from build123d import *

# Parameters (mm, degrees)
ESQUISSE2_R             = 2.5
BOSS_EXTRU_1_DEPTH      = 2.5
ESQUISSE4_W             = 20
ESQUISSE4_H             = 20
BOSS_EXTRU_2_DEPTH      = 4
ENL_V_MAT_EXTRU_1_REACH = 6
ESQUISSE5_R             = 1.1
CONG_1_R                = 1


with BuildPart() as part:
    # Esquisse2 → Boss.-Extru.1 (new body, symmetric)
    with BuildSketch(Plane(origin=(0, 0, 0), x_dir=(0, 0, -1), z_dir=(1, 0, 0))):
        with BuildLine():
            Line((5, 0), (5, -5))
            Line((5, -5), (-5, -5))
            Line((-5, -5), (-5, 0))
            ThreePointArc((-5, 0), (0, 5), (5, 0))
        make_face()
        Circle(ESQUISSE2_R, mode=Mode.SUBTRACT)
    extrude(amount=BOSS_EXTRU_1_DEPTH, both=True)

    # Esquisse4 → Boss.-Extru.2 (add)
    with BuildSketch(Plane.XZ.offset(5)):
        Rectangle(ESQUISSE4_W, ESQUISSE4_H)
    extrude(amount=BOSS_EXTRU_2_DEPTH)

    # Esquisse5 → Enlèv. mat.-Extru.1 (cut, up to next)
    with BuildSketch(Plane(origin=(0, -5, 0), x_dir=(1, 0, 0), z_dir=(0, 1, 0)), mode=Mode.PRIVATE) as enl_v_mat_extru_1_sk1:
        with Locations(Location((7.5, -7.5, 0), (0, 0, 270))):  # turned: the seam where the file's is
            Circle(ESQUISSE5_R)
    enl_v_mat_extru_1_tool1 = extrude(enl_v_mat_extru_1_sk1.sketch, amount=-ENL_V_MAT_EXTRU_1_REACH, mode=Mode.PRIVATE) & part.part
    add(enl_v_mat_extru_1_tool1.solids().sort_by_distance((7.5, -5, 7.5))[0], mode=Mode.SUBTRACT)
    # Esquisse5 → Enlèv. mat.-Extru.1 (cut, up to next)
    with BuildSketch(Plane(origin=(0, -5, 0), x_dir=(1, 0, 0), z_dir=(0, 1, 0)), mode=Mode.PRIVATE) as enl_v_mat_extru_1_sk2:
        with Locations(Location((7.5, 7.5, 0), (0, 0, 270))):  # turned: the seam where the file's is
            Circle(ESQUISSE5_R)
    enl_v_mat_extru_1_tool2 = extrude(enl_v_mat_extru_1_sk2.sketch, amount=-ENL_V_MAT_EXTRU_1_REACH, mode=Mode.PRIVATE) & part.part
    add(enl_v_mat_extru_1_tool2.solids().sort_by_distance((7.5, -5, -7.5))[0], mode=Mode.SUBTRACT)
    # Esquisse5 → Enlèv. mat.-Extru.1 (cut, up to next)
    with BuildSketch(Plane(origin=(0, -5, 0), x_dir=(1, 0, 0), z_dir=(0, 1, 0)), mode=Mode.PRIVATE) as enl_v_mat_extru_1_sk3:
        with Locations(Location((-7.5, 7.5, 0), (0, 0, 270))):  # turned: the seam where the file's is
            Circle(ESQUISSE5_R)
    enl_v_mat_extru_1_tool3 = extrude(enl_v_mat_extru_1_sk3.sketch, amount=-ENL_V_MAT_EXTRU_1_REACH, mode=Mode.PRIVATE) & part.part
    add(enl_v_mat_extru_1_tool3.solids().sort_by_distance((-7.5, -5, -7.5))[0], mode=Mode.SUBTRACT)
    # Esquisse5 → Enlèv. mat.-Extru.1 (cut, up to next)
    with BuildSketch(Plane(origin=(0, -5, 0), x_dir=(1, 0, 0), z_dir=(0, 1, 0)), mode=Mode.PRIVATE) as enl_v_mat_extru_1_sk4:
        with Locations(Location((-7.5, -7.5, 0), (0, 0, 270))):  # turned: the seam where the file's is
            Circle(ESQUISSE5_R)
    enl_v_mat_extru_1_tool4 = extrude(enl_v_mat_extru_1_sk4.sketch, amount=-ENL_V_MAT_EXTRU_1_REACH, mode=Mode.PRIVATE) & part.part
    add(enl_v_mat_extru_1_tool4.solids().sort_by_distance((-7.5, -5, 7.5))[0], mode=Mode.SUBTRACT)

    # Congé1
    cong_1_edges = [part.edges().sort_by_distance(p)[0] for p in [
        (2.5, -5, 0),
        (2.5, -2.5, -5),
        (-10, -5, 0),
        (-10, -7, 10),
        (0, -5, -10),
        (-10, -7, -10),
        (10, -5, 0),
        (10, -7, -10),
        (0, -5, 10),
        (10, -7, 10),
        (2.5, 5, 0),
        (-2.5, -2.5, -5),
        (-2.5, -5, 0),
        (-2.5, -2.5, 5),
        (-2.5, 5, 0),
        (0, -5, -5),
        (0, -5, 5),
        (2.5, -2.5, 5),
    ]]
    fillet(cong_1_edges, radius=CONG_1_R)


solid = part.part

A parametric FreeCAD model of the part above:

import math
import FreeCAD as App
import Part
import Sketcher
from FreeCAD import Vector


def edges_at(feature, points):
    """Names of the edges that pass closest to the given points."""
    edges = feature.Shape.Edges
    near = lambda p: min(range(len(edges)), key=lambda i: edges[i].distToShape(Part.Vertex(*p))[0])
    return sorted({f"Edge{near(p) + 1}" for p in points})


def add_polygon(sketch, points):
    """Adds a closed chain of lines whose ends are joined by coincident constraints."""
    first, n = sketch.GeometryCount, len(points)
    for a, b in zip(points, points[1:] + points[:1]):
        sketch.addGeometry(Part.LineSegment(App.Vector(*a, 0), App.Vector(*b, 0)), False)
    for i in range(n):
        sketch.addConstraint(Sketcher.Constraint("Coincident", first + i, 2, first + (i + 1) % n, 1))

doc = App.newDocument("Part")
body = doc.addObject("PartDesign::Body", "Body")

# Sketch on YZ plane
sketch1 = body.newObject("Sketcher::SketchObject", "Sketch")
sketch1.AttachmentSupport = (doc.getObject("YZ_Plane"), [""])
sketch1.MapMode = "FlatFace"
sketch1.addGeometry(Part.LineSegment(Vector(-5, -5, 0), Vector(0, -5, 0)), False)
sketch1.addGeometry(Part.ArcOfCircle(Part.Circle(Vector(0, 0, 0), Vector(0, 0, 1), 5), math.radians(-90), math.radians(90)), False)
sketch1.addGeometry(Part.LineSegment(Vector(0, 5, 0), Vector(-5, 5, 0)), False)
sketch1.addGeometry(Part.LineSegment(Vector(-5, 5, 0), Vector(-5, -5, 0)), False)
sketch1.addGeometry(Part.Circle(Vector(0, 0, 0), Vector(0, 0, 1), 2.5), False)
sketch1.addConstraint(Sketcher.Constraint("Tangent", 0, 2, 1, 1))
sketch1.addConstraint(Sketcher.Constraint("Tangent", 1, 2, 2, 1))
sketch1.addConstraint(Sketcher.Constraint("Coincident", 2, 2, 3, 1))
sketch1.addConstraint(Sketcher.Constraint("Coincident", 3, 2, 0, 1))
sketch1.addConstraint(Sketcher.Constraint("Horizontal", 0))
sketch1.addConstraint(Sketcher.Constraint("Horizontal", 2))
sketch1.addConstraint(Sketcher.Constraint("Vertical", 3))
sketch1.addConstraint(Sketcher.Constraint("Coincident", 1, 3, -1, 1))
sketch1.addConstraint(Sketcher.Constraint("Coincident", 4, 3, -1, 1))
sketch1.addConstraint(Sketcher.Constraint("Diameter", 4, 5.0))
sketch1.addConstraint(Sketcher.Constraint("Radius", 1, 5.0))
sketch1.addConstraint(Sketcher.Constraint("DistanceX", 0, 1, 0, 2, 5.0))
pad1 = body.newObject("PartDesign::Pad", "Pad")
pad1.Profile = sketch1
pad1.Length = 5
pad1.Midplane = True

# Sketch on XZ plane
sketch2 = body.newObject("Sketcher::SketchObject", "Sketch001")
sketch2.AttachmentSupport = (doc.getObject("XZ_Plane"), [""])
sketch2.MapMode = "FlatFace"
sketch2.AttachmentOffset = App.Placement(Vector(0, 0, 5), App.Rotation())
add_polygon(sketch2, [(-10, 10), (-10, -10), (10, -10), (10, 10)])  # lines 0-3
sketch2.addConstraint(Sketcher.Constraint("Vertical", 0))
sketch2.addConstraint(Sketcher.Constraint("Horizontal", 1))
sketch2.addConstraint(Sketcher.Constraint("Vertical", 2))
sketch2.addConstraint(Sketcher.Constraint("Horizontal", 3))
sketch2.addConstraint(Sketcher.Constraint("Symmetric", 0, 2, 2, 2, -1, 1))
sketch2.addConstraint(Sketcher.Constraint("Equal", 3, 0))
sketch2.addConstraint(Sketcher.Constraint("DistanceX", 1, 1, 1, 2, 20.0))
pad2 = body.newObject("PartDesign::Pad", "Pad001")
pad2.Profile = sketch2
pad2.Length = 4

# Sketch on XZ plane
sketch3 = body.newObject("Sketcher::SketchObject", "Sketch002")
sketch3.AttachmentSupport = (doc.getObject("XZ_Plane"), [""])
sketch3.MapMode = "FlatFace"
sketch3.AttachmentOffset = App.Placement(Vector(0, 0, 5), App.Rotation())
sketch3.addGeometry(Part.Circle(Vector(7.5, 7.5, 0), Vector(0, 0, 1), 1.1), False)
sketch3.addConstraint(Sketcher.Constraint("Diameter", 0, 2.2))
sketch3.addConstraint(Sketcher.Constraint("DistanceX", -1, 1, 0, 3, 7.5))
sketch3.addConstraint(Sketcher.Constraint("DistanceY", -1, 1, 0, 3, 7.5))
pocket1 = body.newObject("PartDesign::Pocket", "Pocket")
pocket1.Profile = sketch3
pocket1.Type = "UpToFirst"
pocket1.Reversed = True

# Sketch on XZ plane
sketch4 = body.newObject("Sketcher::SketchObject", "Sketch003")
sketch4.AttachmentSupport = (doc.getObject("XZ_Plane"), [""])
sketch4.MapMode = "FlatFace"
sketch4.AttachmentOffset = App.Placement(Vector(0, 0, 5), App.Rotation())
sketch4.addGeometry(Part.Circle(Vector(7.5, -7.5, 0), Vector(0, 0, 1), 1.1), False)
sketch4.addConstraint(Sketcher.Constraint("Diameter", 0, 2.2))
sketch4.addConstraint(Sketcher.Constraint("DistanceX", -1, 1, 0, 3, 7.5))
sketch4.addConstraint(Sketcher.Constraint("DistanceY", 0, 3, -1, 1, 7.5))
pocket2 = body.newObject("PartDesign::Pocket", "Pocket001")
pocket2.Profile = sketch4
pocket2.Type = "UpToFirst"
pocket2.Reversed = True

# Sketch on XZ plane
sketch5 = body.newObject("Sketcher::SketchObject", "Sketch004")
sketch5.AttachmentSupport = (doc.getObject("XZ_Plane"), [""])
sketch5.MapMode = "FlatFace"
sketch5.AttachmentOffset = App.Placement(Vector(0, 0, 5), App.Rotation())
sketch5.addGeometry(Part.Circle(Vector(-7.5, -7.5, 0), Vector(0, 0, 1), 1.1), False)
sketch5.addConstraint(Sketcher.Constraint("Diameter", 0, 2.2))
sketch5.addConstraint(Sketcher.Constraint("DistanceX", 0, 3, -1, 1, 7.5))
sketch5.addConstraint(Sketcher.Constraint("DistanceY", 0, 3, -1, 1, 7.5))
pocket3 = body.newObject("PartDesign::Pocket", "Pocket002")
pocket3.Profile = sketch5
pocket3.Type = "UpToFirst"
pocket3.Reversed = True

# Sketch on XZ plane
sketch6 = body.newObject("Sketcher::SketchObject", "Sketch005")
sketch6.AttachmentSupport = (doc.getObject("XZ_Plane"), [""])
sketch6.MapMode = "FlatFace"
sketch6.AttachmentOffset = App.Placement(Vector(0, 0, 5), App.Rotation())
sketch6.addGeometry(Part.Circle(Vector(-7.5, 7.5, 0), Vector(0, 0, 1), 1.1), False)
sketch6.addConstraint(Sketcher.Constraint("Diameter", 0, 2.2))
sketch6.addConstraint(Sketcher.Constraint("DistanceX", 0, 3, -1, 1, 7.5))
sketch6.addConstraint(Sketcher.Constraint("DistanceY", -1, 1, 0, 3, 7.5))
pocket4 = body.newObject("PartDesign::Pocket", "Pocket003")
pocket4.Profile = sketch6
pocket4.Type = "UpToFirst"
pocket4.Reversed = True
doc.recompute()

fillet = body.newObject("PartDesign::Fillet", "Fillet")
fillet.Base = (pocket4, edges_at(pocket4, [
    (2.5, -5, 0),
    (2.5, -2.5, -5),
    (-10, -5, 0),
    (-10, -7, 10),
    (0, -5, -10),
    (-10, -7, -10),
    (10, -5, 0),
    (10, -7, -10),
    (0, -5, 10),
    (10, -7, 10),
    (2.5, 5, 0),
    (-2.5, -2.5, -5),
    (-2.5, -5, 0),
    (-2.5, -2.5, 5),
    (-2.5, 5, 0),
    (0, -5, -5),
    (0, -5, 5),
    (2.5, -2.5, 5),
]))
fillet.Radius = 1

doc.recompute()
